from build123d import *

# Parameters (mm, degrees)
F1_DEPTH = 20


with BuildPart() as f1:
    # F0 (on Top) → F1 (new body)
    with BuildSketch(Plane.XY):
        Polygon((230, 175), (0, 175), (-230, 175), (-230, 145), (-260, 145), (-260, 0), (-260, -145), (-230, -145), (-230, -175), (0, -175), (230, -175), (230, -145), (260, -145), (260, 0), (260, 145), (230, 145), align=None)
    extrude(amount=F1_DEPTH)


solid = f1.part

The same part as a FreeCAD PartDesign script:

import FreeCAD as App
import Part
import Sketcher
Q = App.Units.Quantity

doc = App.newDocument("Part")
params = doc.addObject("Spreadsheet::Sheet", "Params")
for row, (alias, value) in enumerate([
    ("sketch1_width", "460 mm"),
    ("sketch1_width2", "30 mm"),
    ("sketch1_height", "290 mm"),
    ("pad1_length", "20 mm"),
], start=1):
    params.set(f"A{row}", alias)
    params.set(f"B{row}", "=" + value)
    params.setAlias(f"B{row}", alias)

body = doc.addObject("PartDesign::Body", "Body")

sketch1 = doc.addObject("Sketcher::SketchObject", "Sketch")
body.addObject(sketch1)
sketch1.AttachmentSupport = (doc.XY_Plane, [""])
sketch1.MapMode = "FlatFace"
sketch1.addGeometry([
    Part.LineSegment(App.Vector(230, 175, 0), App.Vector(-230, 175, 0)),
    Part.LineSegment(App.Vector(-230, 175, 0), App.Vector(-230, 145, 0)),
    Part.LineSegment(App.Vector(-230, 145, 0), App.Vector(-260, 145, 0)),
    Part.LineSegment(App.Vector(-260, 145, 0), App.Vector(-260, -145, 0)),
    Part.LineSegment(App.Vector(-260, -145, 0), App.Vector(-230, -145, 0)),
    Part.LineSegment(App.Vector(-230, -145, 0), App.Vector(-230, -175, 0)),
    Part.LineSegment(App.Vector(-230, -175, 0), App.Vector(230, -175, 0)),
    Part.LineSegment(App.Vector(230, -175, 0), App.Vector(230, -145, 0)),
    Part.LineSegment(App.Vector(230, -145, 0), App.Vector(260, -145, 0)),
    Part.LineSegment(App.Vector(260, -145, 0), App.Vector(260, 145, 0)),
    Part.LineSegment(App.Vector(260, 145, 0), App.Vector(230, 145, 0)),
    Part.LineSegment(App.Vector(230, 145, 0), App.Vector(230, 175, 0)),
], False)
sketch1.addConstraint([
    Sketcher.Constraint("Coincident", 0, 2, 1, 1),
    Sketcher.Constraint("Coincident", 1, 2, 2, 1),
    Sketcher.Constraint("Coincident", 2, 2, 3, 1),
    Sketcher.Constraint("Coincident", 3, 2, 4, 1),
    Sketcher.Constraint("Coincident", 4, 2, 5, 1),
    Sketcher.Constraint("Coincident", 5, 2, 6, 1),
    Sketcher.Constraint("Coincident", 6, 2, 7, 1),
    Sketcher.Constraint("Coincident", 7, 2, 8, 1),
    Sketcher.Constraint("Coincident", 8, 2, 9, 1),
    Sketcher.Constraint("Coincident", 9, 2, 10, 1),
    Sketcher.Constraint("Coincident", 10, 2, 11, 1),
    Sketcher.Constraint("Coincident", 11, 2, 0, 1),
    Sketcher.Constraint("Horizontal", 0),
    Sketcher.Constraint("Vertical", 1),
    Sketcher.Constraint("Horizontal", 2),
    Sketcher.Constraint("Vertical", 3),
    Sketcher.Constraint("Horizontal", 4),
    Sketcher.Constraint("Vertical", 5),
    Sketcher.Constraint("Horizontal", 6),
    Sketcher.Constraint("Vertical", 7),
    Sketcher.Constraint("Horizontal", 8),
    Sketcher.Constraint("Vertical", 9),
    Sketcher.Constraint("Horizontal", 10),
    Sketcher.Constraint("Vertical", 11),
    Sketcher.Constraint("Symmetric", 0, 2, 6, 2, -1, 1),
    Sketcher.Constraint("Symmetric", 2, 2, 8, 2, -1, 1),
    Sketcher.Constraint("Symmetric", 4, 2, 10, 2, -1, 1),
    Sketcher.Constraint("Symmetric", 4, 2, 7, 2, -2),
    Sketcher.Constraint("Equal", 10, 1),
    Sketcher.Constraint("DistanceX", 0, 2, 0, 1, Q("460 mm")),
    Sketcher.Constraint("DistanceX", 2, 2, 2, 1, Q("30 mm")),
    Sketcher.Constraint("DistanceY", 3, 2, 3, 1, Q("290 mm")),
])
sketch1.setExpression("Constraints[29]", "Params.sketch1_width")
sketch1.setExpression("Constraints[30]", "Params.sketch1_width2")
sketch1.setExpression("Constraints[31]", "Params.sketch1_height")
pad1 = doc.addObject("PartDesign::Pad", "Pad")
body.addObject(pad1)
pad1.Profile = sketch1
pad1.setExpression("Length", "Params.pad1_length")

doc.recompute()
